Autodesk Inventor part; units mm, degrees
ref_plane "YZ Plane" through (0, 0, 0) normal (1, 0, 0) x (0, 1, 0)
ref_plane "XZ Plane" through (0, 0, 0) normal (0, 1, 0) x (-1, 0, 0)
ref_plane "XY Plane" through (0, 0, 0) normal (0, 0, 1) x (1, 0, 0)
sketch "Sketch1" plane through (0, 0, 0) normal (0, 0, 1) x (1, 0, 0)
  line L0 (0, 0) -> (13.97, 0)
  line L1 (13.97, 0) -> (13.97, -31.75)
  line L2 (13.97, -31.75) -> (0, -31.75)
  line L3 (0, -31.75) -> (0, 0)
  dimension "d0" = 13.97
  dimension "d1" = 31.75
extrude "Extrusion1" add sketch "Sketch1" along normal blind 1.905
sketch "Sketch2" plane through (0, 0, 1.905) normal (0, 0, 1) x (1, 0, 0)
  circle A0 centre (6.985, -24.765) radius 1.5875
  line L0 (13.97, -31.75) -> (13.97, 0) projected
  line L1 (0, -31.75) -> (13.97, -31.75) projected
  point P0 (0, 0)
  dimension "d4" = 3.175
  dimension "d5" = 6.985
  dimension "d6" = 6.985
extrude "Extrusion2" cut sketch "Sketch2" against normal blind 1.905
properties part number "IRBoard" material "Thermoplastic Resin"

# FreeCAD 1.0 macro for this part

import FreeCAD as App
import Part
import Sketcher
Q = App.Units.Quantity

doc = App.newDocument("Part")
body = doc.addObject("PartDesign::Body", "Body")

sketch1 = body.newObject("Sketcher::SketchObject", "Sketch")
sketch1.AttachmentSupport = (doc.getObject("XY_Plane"), [""])
sketch1.MapMode = "FlatFace"
sketch1.addGeometry([
    Part.LineSegment(App.Vector(14, 0, 0), App.Vector(0, 0, 0)),
    Part.LineSegment(App.Vector(0, 0, 0), App.Vector(0, -32, 0)),
    Part.LineSegment(App.Vector(0, -32, 0), App.Vector(14, -32, 0)),
    Part.LineSegment(App.Vector(14, -32, 0), App.Vector(14, 0, 0)),
], False)
sketch1.addConstraint([
    Sketcher.Constraint("Coincident", 0, 2, 1, 1),
    Sketcher.Constraint("Coincident", 1, 2, 2, 1),
    Sketcher.Constraint("Coincident", 2, 2, 3, 1),
    Sketcher.Constraint("Coincident", 3, 2, 0, 1),
    Sketcher.Constraint("Horizontal", 0),
    Sketcher.Constraint("Vertical", 1),
    Sketcher.Constraint("Horizontal", 2),
    Sketcher.Constraint("Vertical", 3),
    Sketcher.Constraint("Coincident", 0, 2, -1, 1),
    Sketcher.Constraint("DistanceX", 0, 2, 0, 1, Q("0.55 in")),
    Sketcher.Constraint("DistanceY", 1, 2, 1, 1, Q("1.25 in")),
])
pad1 = body.newObject("PartDesign::Pad", "Pad")
pad1.Profile = sketch1
pad1.Length = Q("0.075 in")

sketch2 = body.newObject("Sketcher::SketchObject", "Sketch001")
sketch2.AttachmentSupport = (doc.getObject("XY_Plane"), [""])
sketch2.MapMode = "FlatFace"
sketch2.AttachmentOffset = App.Placement(App.Vector(0, 0, 0.075 * 25.4), App.Rotation())
sketch2.addGeometry(Part.Circle(App.Vector(7, -24.8, 0), App.Vector(0, 0, 1), 1.6), False)
sketch2.addConstraint([
    Sketcher.Constraint("Diameter", 0, Q("0.125 in")),
    Sketcher.Constraint("DistanceX", -1, 1, 0, 3, Q("0.275 in")),
    Sketcher.Constraint("DistanceY", 0, 3, -1, 1, Q("0.975 in")),
])
pocket1 = body.newObject("PartDesign::Pocket", "Pocket")
pocket1.Profile = sketch2
pocket1.Length = Q("0.075 in")

doc.recompute()
